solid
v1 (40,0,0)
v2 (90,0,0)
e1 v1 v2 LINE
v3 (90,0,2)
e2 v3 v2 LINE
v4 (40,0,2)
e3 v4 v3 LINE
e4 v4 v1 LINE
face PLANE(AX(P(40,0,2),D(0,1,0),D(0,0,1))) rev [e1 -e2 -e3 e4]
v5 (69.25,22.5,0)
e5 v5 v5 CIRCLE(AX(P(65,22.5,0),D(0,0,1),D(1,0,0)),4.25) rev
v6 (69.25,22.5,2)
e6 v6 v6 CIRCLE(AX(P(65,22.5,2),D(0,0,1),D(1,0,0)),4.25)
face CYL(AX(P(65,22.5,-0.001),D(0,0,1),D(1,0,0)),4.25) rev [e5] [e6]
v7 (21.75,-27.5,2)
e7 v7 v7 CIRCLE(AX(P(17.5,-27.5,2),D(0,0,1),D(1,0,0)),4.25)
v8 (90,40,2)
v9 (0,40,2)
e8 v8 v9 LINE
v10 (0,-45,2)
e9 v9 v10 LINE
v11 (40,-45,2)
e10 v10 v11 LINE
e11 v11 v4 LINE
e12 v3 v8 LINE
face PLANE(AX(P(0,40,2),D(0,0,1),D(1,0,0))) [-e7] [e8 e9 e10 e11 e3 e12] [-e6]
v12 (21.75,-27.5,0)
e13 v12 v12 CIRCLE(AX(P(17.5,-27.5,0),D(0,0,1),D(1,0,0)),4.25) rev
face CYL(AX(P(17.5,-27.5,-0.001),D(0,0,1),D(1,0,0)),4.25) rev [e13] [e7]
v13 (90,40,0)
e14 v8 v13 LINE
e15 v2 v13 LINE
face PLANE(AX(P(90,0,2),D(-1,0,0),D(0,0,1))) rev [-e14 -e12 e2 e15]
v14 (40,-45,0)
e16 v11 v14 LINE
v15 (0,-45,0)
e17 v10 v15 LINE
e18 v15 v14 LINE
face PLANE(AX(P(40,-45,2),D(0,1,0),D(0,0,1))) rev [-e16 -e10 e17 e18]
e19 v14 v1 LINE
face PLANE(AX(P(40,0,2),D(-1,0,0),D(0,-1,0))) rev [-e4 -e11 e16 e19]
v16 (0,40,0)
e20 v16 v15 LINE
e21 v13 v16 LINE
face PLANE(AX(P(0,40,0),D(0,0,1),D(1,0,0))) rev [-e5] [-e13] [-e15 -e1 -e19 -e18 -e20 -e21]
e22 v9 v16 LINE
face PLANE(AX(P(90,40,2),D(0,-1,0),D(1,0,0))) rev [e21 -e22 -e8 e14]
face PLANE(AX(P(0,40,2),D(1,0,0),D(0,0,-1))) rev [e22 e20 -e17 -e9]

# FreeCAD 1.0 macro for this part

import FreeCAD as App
import Part
import Sketcher
Q = App.Units.Quantity

doc = App.newDocument("Part")
body = doc.addObject("PartDesign::Body", "Body")

sketch1 = body.newObject("Sketcher::SketchObject", "Sketch")
sketch1.AttachmentSupport = (doc.getObject("XY_Plane"), [""])
sketch1.MapMode = "FlatFace"
sketch1.addGeometry([
    Part.LineSegment(App.Vector(40, -45, 0), App.Vector(40, 0, 0)),
    Part.LineSegment(App.Vector(40, 0, 0), App.Vector(90, 0, 0)),
    Part.LineSegment(App.Vector(90, 0, 0), App.Vector(90, 40, 0)),
    Part.LineSegment(App.Vector(90, 40, 0), App.Vector(0, 40, 0)),
    Part.LineSegment(App.Vector(0, 40, 0), App.Vector(0, -45, 0)),
    Part.LineSegment(App.Vector(0, -45, 0), App.Vector(40, -45, 0)),
], False)
sketch1.addConstraint([
    Sketcher.Constraint("Coincident", 0, 2, 1, 1),
    Sketcher.Constraint("Coincident", 1, 2, 2, 1),
    Sketcher.Constraint("Coincident", 2, 2, 3, 1),
    Sketcher.Constraint("Coincident", 3, 2, 4, 1),
    Sketcher.Constraint("Coincident", 4, 2, 5, 1),
    Sketcher.Constraint("Coincident", 5, 2, 0, 1),
    Sketcher.Constraint("Vertical", 0),
    Sketcher.Constraint("Horizontal", 1),
    Sketcher.Constraint("Vertical", 2),
    Sketcher.Constraint("Horizontal", 3),
    Sketcher.Constraint("Vertical", 4),
    Sketcher.Constraint("Horizontal", 5),
    Sketcher.Constraint("PointOnObject", 0, 2, -1),
    Sketcher.Constraint("PointOnObject", 3, 2, -2),
    Sketcher.Constraint("Equal", 5, 2),
    Sketcher.Constraint("DistanceX", 1, 1, 1, 2, Q("50 mm")),
    Sketcher.Constraint("DistanceX", 3, 2, 3, 1, Q("90 mm")),
    Sketcher.Constraint("DistanceY", 0, 1, 0, 2, Q("45 mm")),
])
pad1 = body.newObject("PartDesign::Pad", "Pad")
pad1.Profile = sketch1
pad1.Length = 2

sketch2 = body.newObject("Sketcher::SketchObject", "Sketch001")
sketch2.AttachmentSupport = (doc.getObject("XY_Plane"), [""])
sketch2.MapMode = "FlatFace"
sketch2.AttachmentOffset = App.Placement(App.Vector(0, 0, 2), App.Rotation())
sketch2.addGeometry(Part.Circle(App.Vector(17.5, -27.5, 0), App.Vector(0, 0, 1), 4.2), False)
sketch2.addConstraint([
    Sketcher.Constraint("Diameter", 0, Q("8.5 mm")),
    Sketcher.Constraint("DistanceX", -1, 1, 0, 3, Q("17.5 mm")),
    Sketcher.Constraint("DistanceY", 0, 3, -1, 1, Q("27.5 mm")),
])
pocket1 = body.newObject("PartDesign::Pocket", "Pocket")
pocket1.Profile = sketch2
pocket1.Type = "UpToFirst"

sketch3 = body.newObject("Sketcher::SketchObject", "Sketch002")
sketch3.AttachmentSupport = (doc.getObject("XY_Plane"), [""])
sketch3.MapMode = "FlatFace"
sketch3.AttachmentOffset = App.Placement(App.Vector(0, 0, 2), App.Rotation())
sketch3.addGeometry(Part.Circle(App.Vector(65, 22.5, 0), App.Vector(0, 0, 1), 4.2), False)
sketch3.addConstraint([
    Sketcher.Constraint("Diameter", 0, Q("8.5 mm")),
    Sketcher.Constraint("DistanceX", -1, 1, 0, 3, Q("65 mm")),
    Sketcher.Constraint("DistanceY", -1, 1, 0, 3, Q("22.5 mm")),
])
pocket2 = body.newObject("PartDesign::Pocket", "Pocket001")
pocket2.Profile = sketch3
pocket2.Type = "UpToFirst"

doc.recompute()
